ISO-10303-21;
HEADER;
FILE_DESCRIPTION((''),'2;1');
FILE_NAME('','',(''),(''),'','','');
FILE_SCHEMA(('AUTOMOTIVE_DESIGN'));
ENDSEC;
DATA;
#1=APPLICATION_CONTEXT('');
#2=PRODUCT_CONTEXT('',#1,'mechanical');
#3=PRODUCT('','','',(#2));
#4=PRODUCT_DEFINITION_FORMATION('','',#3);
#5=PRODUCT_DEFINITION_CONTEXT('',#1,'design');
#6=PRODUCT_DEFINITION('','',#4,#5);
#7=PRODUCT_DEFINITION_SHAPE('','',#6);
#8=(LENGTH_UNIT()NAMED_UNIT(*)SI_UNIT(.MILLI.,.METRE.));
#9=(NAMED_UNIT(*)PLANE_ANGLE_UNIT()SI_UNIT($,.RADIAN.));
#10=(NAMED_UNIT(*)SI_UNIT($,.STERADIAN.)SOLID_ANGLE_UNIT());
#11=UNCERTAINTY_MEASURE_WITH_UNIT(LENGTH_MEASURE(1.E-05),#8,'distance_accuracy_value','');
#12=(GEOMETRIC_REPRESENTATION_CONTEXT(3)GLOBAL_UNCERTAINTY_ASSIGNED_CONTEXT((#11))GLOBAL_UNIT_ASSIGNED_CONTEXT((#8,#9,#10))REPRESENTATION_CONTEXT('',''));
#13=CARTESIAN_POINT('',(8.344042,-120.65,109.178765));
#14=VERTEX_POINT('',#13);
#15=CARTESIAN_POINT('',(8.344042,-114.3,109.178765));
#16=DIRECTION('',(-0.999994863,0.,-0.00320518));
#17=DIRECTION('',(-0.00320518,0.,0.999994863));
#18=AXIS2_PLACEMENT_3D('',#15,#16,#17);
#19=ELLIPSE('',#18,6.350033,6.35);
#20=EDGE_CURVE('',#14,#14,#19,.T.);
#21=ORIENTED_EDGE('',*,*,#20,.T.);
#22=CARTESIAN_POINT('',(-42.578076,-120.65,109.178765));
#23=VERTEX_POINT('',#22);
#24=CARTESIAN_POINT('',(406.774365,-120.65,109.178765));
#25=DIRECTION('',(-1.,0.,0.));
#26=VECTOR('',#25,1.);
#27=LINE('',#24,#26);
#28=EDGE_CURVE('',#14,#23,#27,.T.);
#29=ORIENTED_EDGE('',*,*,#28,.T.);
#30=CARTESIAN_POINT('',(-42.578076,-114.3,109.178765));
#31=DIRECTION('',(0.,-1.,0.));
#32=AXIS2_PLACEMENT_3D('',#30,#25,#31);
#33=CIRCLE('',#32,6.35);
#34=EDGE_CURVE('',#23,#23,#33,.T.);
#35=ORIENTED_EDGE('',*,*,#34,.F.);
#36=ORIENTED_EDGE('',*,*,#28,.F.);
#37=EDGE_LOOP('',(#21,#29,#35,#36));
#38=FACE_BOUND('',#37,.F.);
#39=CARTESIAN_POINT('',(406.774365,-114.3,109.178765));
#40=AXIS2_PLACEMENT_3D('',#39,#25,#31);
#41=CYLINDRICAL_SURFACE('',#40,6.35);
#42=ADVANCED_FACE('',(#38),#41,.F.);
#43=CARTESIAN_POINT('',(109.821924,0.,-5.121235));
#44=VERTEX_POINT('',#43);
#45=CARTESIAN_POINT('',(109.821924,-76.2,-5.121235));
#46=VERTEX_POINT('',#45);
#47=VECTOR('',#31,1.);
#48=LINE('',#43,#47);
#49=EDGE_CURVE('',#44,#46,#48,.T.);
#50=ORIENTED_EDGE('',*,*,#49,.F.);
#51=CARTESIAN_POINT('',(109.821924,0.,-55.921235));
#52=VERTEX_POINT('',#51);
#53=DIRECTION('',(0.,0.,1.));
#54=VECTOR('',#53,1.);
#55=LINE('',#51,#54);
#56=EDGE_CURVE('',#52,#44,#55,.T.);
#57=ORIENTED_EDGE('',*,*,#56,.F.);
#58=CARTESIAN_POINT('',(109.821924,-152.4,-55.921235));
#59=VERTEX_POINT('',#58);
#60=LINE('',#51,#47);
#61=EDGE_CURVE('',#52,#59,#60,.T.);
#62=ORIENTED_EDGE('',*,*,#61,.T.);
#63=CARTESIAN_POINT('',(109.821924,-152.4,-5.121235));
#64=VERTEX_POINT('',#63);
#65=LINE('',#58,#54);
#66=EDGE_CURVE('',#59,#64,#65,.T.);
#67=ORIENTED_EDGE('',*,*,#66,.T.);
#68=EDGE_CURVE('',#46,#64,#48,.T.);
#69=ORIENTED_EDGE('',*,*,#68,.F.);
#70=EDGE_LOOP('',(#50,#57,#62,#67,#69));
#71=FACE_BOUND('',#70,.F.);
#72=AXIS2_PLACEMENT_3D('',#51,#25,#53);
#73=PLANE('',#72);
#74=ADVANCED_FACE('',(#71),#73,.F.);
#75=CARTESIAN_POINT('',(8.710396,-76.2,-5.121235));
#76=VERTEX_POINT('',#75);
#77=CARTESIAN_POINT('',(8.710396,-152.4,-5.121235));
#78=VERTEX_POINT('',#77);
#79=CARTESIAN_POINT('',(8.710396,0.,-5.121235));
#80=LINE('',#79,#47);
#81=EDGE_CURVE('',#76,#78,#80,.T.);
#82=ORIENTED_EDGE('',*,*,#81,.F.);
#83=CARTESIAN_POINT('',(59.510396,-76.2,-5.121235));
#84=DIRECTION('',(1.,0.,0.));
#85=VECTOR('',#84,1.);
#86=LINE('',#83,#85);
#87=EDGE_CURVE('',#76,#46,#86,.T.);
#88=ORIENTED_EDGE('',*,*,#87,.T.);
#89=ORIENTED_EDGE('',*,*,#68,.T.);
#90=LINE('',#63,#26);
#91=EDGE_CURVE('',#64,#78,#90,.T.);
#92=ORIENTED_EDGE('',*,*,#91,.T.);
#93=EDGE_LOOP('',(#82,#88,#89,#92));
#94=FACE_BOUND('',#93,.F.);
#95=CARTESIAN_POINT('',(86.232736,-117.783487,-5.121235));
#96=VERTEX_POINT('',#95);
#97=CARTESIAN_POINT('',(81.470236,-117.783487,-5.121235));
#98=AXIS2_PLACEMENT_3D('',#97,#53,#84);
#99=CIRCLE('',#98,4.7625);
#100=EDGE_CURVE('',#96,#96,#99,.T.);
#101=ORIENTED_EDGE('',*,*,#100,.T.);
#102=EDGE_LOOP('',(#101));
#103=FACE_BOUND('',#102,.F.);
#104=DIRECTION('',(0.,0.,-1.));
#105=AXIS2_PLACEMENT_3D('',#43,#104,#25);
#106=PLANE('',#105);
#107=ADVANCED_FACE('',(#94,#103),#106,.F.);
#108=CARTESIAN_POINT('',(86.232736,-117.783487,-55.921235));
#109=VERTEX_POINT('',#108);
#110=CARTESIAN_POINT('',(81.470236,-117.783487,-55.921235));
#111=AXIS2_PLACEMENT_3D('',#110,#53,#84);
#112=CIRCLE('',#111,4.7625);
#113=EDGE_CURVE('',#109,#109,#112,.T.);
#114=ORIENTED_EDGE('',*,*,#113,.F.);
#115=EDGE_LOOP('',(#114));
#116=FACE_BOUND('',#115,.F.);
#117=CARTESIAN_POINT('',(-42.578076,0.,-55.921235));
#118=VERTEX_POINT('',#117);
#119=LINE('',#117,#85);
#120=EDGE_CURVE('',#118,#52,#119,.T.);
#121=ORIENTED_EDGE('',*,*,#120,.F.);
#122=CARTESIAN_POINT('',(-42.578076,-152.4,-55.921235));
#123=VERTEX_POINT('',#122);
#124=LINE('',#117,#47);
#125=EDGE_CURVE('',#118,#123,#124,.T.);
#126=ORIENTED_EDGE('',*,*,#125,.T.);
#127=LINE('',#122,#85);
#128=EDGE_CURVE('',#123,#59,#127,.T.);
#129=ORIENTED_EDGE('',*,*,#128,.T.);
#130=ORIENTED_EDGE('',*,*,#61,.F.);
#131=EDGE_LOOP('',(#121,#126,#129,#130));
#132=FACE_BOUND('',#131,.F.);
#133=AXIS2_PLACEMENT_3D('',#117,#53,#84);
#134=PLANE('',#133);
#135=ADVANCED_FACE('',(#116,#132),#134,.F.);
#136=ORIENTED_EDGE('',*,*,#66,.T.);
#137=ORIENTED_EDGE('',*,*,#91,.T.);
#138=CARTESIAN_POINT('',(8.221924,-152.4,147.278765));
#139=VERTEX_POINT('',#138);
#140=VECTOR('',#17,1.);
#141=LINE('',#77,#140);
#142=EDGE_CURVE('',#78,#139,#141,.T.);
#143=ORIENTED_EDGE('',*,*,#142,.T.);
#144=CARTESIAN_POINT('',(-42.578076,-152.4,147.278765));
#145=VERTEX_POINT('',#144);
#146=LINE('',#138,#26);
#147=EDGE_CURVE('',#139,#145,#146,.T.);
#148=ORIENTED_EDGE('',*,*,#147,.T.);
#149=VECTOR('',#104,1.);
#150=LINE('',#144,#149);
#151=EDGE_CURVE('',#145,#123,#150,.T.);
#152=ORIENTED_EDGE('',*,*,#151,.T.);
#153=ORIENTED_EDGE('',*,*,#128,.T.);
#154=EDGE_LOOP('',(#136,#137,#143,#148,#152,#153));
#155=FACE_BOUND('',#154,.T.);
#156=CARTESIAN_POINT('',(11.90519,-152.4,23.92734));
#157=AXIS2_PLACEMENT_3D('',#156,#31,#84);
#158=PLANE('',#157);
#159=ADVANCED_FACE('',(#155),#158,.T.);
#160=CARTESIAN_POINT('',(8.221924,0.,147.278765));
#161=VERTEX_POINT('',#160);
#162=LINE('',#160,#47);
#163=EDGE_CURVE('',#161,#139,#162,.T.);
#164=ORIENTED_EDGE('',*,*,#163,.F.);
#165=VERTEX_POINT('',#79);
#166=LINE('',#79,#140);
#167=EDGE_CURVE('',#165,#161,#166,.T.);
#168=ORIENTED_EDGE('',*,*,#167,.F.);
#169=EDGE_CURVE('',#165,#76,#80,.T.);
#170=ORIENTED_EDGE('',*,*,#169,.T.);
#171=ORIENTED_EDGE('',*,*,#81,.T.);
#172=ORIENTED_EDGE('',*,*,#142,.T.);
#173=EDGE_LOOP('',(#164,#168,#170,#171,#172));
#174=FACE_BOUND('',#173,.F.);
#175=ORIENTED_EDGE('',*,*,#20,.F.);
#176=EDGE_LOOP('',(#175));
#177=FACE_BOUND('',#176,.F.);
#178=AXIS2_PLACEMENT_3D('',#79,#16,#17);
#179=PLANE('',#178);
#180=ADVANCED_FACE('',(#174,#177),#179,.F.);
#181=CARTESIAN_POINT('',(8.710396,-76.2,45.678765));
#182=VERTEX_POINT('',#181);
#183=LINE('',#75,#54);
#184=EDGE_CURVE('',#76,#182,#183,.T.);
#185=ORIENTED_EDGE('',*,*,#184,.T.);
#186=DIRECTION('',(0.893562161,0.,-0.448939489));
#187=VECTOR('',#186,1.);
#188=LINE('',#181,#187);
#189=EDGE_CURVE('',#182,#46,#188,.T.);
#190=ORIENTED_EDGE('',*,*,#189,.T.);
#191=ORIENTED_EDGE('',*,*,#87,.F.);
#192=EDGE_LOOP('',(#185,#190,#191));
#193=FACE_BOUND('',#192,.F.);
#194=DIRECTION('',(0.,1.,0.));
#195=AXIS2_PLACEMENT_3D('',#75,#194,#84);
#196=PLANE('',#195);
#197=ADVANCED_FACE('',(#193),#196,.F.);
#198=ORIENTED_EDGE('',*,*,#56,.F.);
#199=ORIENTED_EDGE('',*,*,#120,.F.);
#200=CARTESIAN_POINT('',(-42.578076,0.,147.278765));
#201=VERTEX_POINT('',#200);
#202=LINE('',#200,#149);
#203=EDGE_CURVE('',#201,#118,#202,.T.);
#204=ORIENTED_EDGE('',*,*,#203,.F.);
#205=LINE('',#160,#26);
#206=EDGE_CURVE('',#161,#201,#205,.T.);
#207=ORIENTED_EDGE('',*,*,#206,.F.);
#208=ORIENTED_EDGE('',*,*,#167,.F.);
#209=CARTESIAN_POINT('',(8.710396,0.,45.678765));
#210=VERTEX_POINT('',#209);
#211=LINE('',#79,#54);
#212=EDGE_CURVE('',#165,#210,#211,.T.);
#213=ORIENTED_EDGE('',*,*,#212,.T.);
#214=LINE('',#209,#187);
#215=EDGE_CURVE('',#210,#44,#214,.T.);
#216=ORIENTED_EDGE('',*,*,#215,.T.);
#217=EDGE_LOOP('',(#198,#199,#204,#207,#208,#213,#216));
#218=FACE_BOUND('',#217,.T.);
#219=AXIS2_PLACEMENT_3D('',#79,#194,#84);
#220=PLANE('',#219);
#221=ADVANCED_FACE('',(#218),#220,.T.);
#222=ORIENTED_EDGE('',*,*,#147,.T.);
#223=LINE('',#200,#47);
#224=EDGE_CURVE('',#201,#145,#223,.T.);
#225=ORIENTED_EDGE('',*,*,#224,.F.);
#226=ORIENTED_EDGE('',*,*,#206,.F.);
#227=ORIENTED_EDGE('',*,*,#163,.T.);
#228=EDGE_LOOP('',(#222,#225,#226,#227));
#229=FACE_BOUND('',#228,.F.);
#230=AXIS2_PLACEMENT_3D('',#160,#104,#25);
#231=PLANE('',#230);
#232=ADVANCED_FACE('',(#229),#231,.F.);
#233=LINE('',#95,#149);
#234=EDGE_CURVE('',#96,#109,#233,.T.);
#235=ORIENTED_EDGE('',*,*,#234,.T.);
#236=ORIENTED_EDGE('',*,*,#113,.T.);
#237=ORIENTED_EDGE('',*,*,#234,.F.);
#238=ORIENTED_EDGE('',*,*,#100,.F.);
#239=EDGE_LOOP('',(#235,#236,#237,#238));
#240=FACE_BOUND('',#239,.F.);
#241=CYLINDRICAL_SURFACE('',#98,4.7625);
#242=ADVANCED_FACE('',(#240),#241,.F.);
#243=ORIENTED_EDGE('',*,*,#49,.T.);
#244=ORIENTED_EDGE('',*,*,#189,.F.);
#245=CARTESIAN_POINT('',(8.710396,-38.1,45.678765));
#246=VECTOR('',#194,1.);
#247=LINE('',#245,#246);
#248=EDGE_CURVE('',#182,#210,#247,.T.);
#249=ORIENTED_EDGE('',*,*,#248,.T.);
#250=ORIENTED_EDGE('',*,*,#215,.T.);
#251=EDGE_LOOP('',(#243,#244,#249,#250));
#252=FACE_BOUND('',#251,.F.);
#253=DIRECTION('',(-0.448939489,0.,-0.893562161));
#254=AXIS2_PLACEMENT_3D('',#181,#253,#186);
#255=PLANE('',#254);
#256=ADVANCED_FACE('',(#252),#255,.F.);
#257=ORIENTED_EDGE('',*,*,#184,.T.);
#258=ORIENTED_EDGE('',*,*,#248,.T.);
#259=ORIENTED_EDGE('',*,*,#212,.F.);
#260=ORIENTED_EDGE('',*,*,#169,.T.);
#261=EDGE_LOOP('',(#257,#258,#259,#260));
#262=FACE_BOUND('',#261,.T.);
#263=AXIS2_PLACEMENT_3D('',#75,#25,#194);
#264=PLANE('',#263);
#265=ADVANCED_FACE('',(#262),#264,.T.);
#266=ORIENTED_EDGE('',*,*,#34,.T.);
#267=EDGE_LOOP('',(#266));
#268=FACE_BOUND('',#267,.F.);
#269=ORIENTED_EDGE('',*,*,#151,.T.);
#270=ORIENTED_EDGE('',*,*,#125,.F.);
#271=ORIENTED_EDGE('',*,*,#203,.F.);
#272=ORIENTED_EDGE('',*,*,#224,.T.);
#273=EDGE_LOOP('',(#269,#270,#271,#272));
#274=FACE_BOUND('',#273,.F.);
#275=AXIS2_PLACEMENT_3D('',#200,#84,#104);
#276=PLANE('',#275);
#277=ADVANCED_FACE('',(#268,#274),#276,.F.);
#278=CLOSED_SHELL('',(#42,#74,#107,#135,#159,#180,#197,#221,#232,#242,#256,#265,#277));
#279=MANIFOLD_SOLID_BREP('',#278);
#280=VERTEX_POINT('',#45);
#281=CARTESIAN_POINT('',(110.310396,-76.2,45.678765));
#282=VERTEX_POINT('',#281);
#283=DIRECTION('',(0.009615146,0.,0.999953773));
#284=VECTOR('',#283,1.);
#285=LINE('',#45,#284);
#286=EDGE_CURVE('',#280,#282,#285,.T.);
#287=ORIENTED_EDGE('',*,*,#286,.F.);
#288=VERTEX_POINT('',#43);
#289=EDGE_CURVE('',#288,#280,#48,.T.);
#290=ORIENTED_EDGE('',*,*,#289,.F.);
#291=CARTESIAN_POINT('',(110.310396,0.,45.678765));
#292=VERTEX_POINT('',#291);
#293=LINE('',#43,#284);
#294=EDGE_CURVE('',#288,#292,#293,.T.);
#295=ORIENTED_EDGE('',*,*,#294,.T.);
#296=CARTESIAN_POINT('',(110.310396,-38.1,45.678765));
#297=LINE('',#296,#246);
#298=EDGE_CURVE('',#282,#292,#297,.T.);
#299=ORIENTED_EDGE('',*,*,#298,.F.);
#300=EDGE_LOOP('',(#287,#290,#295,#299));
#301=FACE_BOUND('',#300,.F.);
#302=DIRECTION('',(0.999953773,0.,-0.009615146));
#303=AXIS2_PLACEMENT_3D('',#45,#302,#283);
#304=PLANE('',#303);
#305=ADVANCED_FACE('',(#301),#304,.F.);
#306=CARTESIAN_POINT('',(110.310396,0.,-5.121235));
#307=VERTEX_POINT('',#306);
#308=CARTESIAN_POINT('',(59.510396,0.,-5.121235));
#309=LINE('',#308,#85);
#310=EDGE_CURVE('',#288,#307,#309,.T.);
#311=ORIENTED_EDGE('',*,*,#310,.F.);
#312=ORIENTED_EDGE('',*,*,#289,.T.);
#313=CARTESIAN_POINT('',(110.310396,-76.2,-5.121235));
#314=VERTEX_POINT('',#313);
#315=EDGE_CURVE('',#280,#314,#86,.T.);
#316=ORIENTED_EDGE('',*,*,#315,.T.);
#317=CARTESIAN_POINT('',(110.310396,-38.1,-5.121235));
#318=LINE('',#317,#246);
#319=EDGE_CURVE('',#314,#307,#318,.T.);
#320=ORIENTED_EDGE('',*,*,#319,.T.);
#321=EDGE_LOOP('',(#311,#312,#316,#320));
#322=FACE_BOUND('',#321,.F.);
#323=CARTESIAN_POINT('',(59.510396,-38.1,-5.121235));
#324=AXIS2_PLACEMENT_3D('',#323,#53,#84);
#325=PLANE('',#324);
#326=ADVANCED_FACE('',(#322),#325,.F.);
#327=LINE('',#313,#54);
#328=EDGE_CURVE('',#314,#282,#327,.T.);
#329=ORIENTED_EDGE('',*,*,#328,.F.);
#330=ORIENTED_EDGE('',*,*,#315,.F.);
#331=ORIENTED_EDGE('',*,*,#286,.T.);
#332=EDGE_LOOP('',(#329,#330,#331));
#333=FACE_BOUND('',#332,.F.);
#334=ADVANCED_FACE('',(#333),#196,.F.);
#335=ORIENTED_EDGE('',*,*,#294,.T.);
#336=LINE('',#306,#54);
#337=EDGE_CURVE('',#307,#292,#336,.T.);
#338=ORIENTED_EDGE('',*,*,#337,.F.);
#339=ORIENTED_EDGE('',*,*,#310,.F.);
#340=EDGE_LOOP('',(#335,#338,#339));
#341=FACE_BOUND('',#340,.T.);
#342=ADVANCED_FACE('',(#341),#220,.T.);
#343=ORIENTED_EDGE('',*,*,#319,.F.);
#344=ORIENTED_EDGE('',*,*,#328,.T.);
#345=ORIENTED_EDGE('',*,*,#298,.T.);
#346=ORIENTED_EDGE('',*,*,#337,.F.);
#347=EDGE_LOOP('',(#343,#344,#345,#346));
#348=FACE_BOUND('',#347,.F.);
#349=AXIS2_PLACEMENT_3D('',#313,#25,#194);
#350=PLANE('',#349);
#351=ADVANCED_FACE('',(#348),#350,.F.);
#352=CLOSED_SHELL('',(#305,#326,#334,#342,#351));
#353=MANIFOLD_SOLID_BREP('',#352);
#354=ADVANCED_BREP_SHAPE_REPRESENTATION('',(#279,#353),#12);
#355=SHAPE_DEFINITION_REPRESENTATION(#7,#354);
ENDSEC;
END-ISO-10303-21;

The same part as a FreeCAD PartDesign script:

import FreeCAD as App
import Part
import Sketcher
Q = App.Units.Quantity

doc = App.newDocument("Part")
body = doc.addObject("PartDesign::Body", "Body")
body.AllowCompound = True

sketch1 = doc.addObject("Sketcher::SketchObject", "Sketch")
body.addObject(sketch1)
sketch1.AttachmentSupport = (doc.XZ_Plane, [""])
sketch1.MapMode = "FlatFace"
sketch1.addGeometry([
    Part.LineSegment(App.Vector(8, 147, 0), App.Vector(-43, 147, 0)),
    Part.LineSegment(App.Vector(-43, 147, 0), App.Vector(-43, -56, 0)),
    Part.LineSegment(App.Vector(-43, -56, 0), App.Vector(110, -56, 0)),
    Part.LineSegment(App.Vector(110, -56, 0), App.Vector(110, -5, 0)),
    Part.LineSegment(App.Vector(110, -5, 0), App.Vector(9, -5, 0)),
    Part.LineSegment(App.Vector(9, -5, 0), App.Vector(8, 147, 0)),
], False)
sketch1.addConstraint([
    Sketcher.Constraint("Coincident", 0, 2, 1, 1),
    Sketcher.Constraint("Coincident", 1, 2, 2, 1),
    Sketcher.Constraint("Coincident", 2, 2, 3, 1),
    Sketcher.Constraint("Coincident", 3, 2, 4, 1),
    Sketcher.Constraint("Coincident", 4, 2, 5, 1),
    Sketcher.Constraint("Coincident", 5, 2, 0, 1),
    Sketcher.Constraint("Horizontal", 0),
    Sketcher.Constraint("Vertical", 1),
    Sketcher.Constraint("Horizontal", 2),
    Sketcher.Constraint("Vertical", 3),
    Sketcher.Constraint("Horizontal", 4),
    Sketcher.Constraint("Equal", 0, 3),
    Sketcher.Constraint("DistanceX", 0, 2, 0, 1, Q("2 in")),
    Sketcher.Constraint("DistanceX", 2, 1, 2, 2, Q("6 in")),
    Sketcher.Constraint("DistanceY", 1, 2, 1, 1, Q("8 in")),
    Sketcher.Constraint("DistanceX", 4, 2, 4, 1, Q("101.111528 mm")),
    Sketcher.Constraint("DistanceX", 0, 2, -1, 1, Q("42.578076 mm")),
    Sketcher.Constraint("DistanceY", -1, 1, 0, 2, Q("147.278765 mm")),
])
pad1 = doc.addObject("PartDesign::Pad", "Pad")
body.addObject(pad1)
pad1.Profile = sketch1
pad1.Length = Q("6 in")

sketch2 = doc.addObject("Sketcher::SketchObject", "Sketch001")
body.addObject(sketch2)
sketch2.AttachmentSupport = (doc.XY_Plane, [""])
sketch2.MapMode = "FlatFace"
sketch2.AttachmentOffset = App.Placement(App.Vector(0, 0, -5.121235), App.Rotation())
sketch2.addGeometry([
    Part.LineSegment(App.Vector(9, 0, 0), App.Vector(9, -76, 0)),
    Part.LineSegment(App.Vector(9, -76, 0), App.Vector(110, -76, 0)),
    Part.LineSegment(App.Vector(110, -76, 0), App.Vector(110, 0, 0)),
    Part.LineSegment(App.Vector(110, 0, 0), App.Vector(9, 0, 0)),
], False)
sketch2.addConstraint([
    Sketcher.Constraint("Coincident", 0, 2, 1, 1),
    Sketcher.Constraint("Coincident", 1, 2, 2, 1),
    Sketcher.Constraint("Coincident", 2, 2, 3, 1),
    Sketcher.Constraint("Coincident", 3, 2, 0, 1),
    Sketcher.Constraint("Vertical", 0),
    Sketcher.Constraint("Horizontal", 1),
    Sketcher.Constraint("Vertical", 2),
    Sketcher.Constraint("Horizontal", 3),
    Sketcher.Constraint("PointOnObject", 2, 2, -1),
    Sketcher.Constraint("DistanceX", 1, 1, 1, 2, Q("4 in")),
    Sketcher.Constraint("DistanceY", 0, 2, 0, 1, Q("3 in")),
    Sketcher.Constraint("DistanceX", -1, 1, 0, 2, Q("8.710396 mm")),
])
pad2 = doc.addObject("PartDesign::Pad", "Pad001")
body.addObject(pad2)
pad2.Profile = sketch2
pad2.Length = Q("2 in")

sketch3 = doc.addObject("Sketcher::SketchObject", "Sketch002")
body.addObject(sketch3)
sketch3.AttachmentSupport = (doc.XZ_Plane, [""])
sketch3.MapMode = "FlatFace"
sketch3.AttachmentOffset = App.Placement(App.Vector(0, 0, 3 * 25.4), App.Rotation())
sketch3.addGeometry([
    Part.LineSegment(App.Vector(110, 46, 0), App.Vector(9, 46, 0)),
    Part.LineSegment(App.Vector(9, 46, 0), App.Vector(110, -5, 0)),
    Part.LineSegment(App.Vector(110, -5, 0), App.Vector(110, 46, 0)),
], False)
sketch3.addConstraint([
    Sketcher.Constraint("Coincident", 0, 2, 1, 1),
    Sketcher.Constraint("Coincident", 1, 2, 2, 1),
    Sketcher.Constraint("Coincident", 2, 2, 0, 1),
    Sketcher.Constraint("Horizontal", 0),
    Sketcher.Constraint("DistanceX", 0, 2, 0, 1, Q("4 in")),
    Sketcher.Constraint("DistanceY", 1, 2, 0, 2, Q("2 in")),
    Sketcher.Constraint("Distance", 1, Q("113.155561 mm")),
    Sketcher.Constraint("DistanceX", -1, 1, 0, 2, Q("8.710396 mm")),
    Sketcher.Constraint("DistanceY", -1, 1, 0, 2, Q("45.678765 mm")),
])
pocket1 = doc.addObject("PartDesign::Pocket", "Pocket")
body.addObject(pocket1)
pocket1.Profile = sketch3
pocket1.Length = Q("3 in")

sketch4 = doc.addObject("Sketcher::SketchObject", "Sketch003")
body.addObject(sketch4)
sketch4.AttachmentSupport = (doc.XY_Plane, [""])
sketch4.MapMode = "FlatFace"
sketch4.AttachmentOffset = App.Placement(App.Vector(0, 0, -5.121235), App.Rotation())
sketch4.addGeometry(Part.Circle(App.Vector(81.5, -117.8, 0), App.Vector(0, 0, 1), 4.8), False)
sketch4.addConstraint([
    Sketcher.Constraint("Diameter", 0, Q("0.375 in")),
    Sketcher.Constraint("DistanceX", -1, 1, 0, 3, Q("81.470236 mm")),
    Sketcher.Constraint("DistanceY", 0, 3, -1, 1, Q("117.783487 mm")),
])
pocket2 = doc.addObject("PartDesign::Pocket", "Pocket001")
body.addObject(pocket2)
pocket2.Profile = sketch4
pocket2.Length = Q("4 in")

sketch5 = doc.addObject("Sketcher::SketchObject", "Sketch004")
body.addObject(sketch5)
sketch5.AttachmentSupport = (doc.YZ_Plane, [""])
sketch5.MapMode = "FlatFace"
sketch5.AttachmentOffset = App.Placement(App.Vector(0, 0, 110.310396), App.Rotation())
sketch5.addGeometry(Part.Circle(App.Vector(-114, 109, 0), App.Vector(0, 0, 1), 6), False)
sketch5.addConstraint([
    Sketcher.Constraint("Diameter", 0, Q("0.5 in")),
    Sketcher.Constraint("DistanceX", 0, 3, -1, 1, Q("4.5 in")),
    Sketcher.Constraint("DistanceY", -1, 1, 0, 3, Q("109.178765 mm")),
])
doc.recompute()
hole = doc.addObject("PartDesign::Hole", "Hole")
body.addObject(hole)
hole.Profile = sketch5
hole.ThreadType = "None"
hole.Diameter = Q("0.5 in")
hole.DepthType = "ThroughAll"

sketch6 = doc.addObject("Sketcher::SketchObject", "Sketch005")
body.addObject(sketch6)
sketch6.AttachmentSupport = (doc.XY_Plane, [""])
sketch6.MapMode = "FlatFace"
sketch6.AttachmentOffset = App.Placement(App.Vector(0, 0, -5.121235), App.Rotation())
sketch6.addGeometry([
    Part.LineSegment(App.Vector(8.7, -76.2, 0), App.Vector(8.7, -152.4, 0)),
    Part.LineSegment(App.Vector(8.7, -152.4, 0), App.Vector(109.8, -152.4, 0)),
    Part.LineSegment(App.Vector(109.8, -152.4, 0), App.Vector(109.8, -76.2, 0)),
    Part.LineSegment(App.Vector(109.8, -76.2, 0), App.Vector(8.7, -76.2, 0)),
    Part.Circle(App.Vector(81.5, -117.8, 0), App.Vector(0, 0, 1), 4.8),
], False)
sketch6.addConstraint([
    Sketcher.Constraint("Coincident", 0, 2, 1, 1),
    Sketcher.Constraint("Coincident", 1, 2, 2, 1),
    Sketcher.Constraint("Coincident", 2, 2, 3, 1),
    Sketcher.Constraint("Coincident", 3, 2, 0, 1),
    Sketcher.Constraint("Vertical", 0),
    Sketcher.Constraint("Horizontal", 1),
    Sketcher.Constraint("Vertical", 2),
    Sketcher.Constraint("Horizontal", 3),
    Sketcher.Constraint("DistanceY", 0, 2, 0, 1, Q("3 in")),
    Sketcher.Constraint("Diameter", 4, Q("0.375 in")),
    Sketcher.Constraint("DistanceY", 0, 2, -1, 1, Q("6 in")),
    Sketcher.Constraint("DistanceX", 1, 1, 1, 2, Q("101.111528 mm")),
    Sketcher.Constraint("DistanceX", 0, 2, 4, 3, Q("72.75984 mm")),
    Sketcher.Constraint("DistanceX", -1, 1, 4, 3, Q("81.470236 mm")),
    Sketcher.Constraint("DistanceY", 4, 3, -1, 1, Q("117.783487 mm")),
])
pocket3 = doc.addObject("PartDesign::Pocket", "Pocket002")
body.addObject(pocket3)
pocket3.Profile = sketch6
pocket3.Length = Q("4 in")
pocket3.Reversed = True

doc.recompute()
